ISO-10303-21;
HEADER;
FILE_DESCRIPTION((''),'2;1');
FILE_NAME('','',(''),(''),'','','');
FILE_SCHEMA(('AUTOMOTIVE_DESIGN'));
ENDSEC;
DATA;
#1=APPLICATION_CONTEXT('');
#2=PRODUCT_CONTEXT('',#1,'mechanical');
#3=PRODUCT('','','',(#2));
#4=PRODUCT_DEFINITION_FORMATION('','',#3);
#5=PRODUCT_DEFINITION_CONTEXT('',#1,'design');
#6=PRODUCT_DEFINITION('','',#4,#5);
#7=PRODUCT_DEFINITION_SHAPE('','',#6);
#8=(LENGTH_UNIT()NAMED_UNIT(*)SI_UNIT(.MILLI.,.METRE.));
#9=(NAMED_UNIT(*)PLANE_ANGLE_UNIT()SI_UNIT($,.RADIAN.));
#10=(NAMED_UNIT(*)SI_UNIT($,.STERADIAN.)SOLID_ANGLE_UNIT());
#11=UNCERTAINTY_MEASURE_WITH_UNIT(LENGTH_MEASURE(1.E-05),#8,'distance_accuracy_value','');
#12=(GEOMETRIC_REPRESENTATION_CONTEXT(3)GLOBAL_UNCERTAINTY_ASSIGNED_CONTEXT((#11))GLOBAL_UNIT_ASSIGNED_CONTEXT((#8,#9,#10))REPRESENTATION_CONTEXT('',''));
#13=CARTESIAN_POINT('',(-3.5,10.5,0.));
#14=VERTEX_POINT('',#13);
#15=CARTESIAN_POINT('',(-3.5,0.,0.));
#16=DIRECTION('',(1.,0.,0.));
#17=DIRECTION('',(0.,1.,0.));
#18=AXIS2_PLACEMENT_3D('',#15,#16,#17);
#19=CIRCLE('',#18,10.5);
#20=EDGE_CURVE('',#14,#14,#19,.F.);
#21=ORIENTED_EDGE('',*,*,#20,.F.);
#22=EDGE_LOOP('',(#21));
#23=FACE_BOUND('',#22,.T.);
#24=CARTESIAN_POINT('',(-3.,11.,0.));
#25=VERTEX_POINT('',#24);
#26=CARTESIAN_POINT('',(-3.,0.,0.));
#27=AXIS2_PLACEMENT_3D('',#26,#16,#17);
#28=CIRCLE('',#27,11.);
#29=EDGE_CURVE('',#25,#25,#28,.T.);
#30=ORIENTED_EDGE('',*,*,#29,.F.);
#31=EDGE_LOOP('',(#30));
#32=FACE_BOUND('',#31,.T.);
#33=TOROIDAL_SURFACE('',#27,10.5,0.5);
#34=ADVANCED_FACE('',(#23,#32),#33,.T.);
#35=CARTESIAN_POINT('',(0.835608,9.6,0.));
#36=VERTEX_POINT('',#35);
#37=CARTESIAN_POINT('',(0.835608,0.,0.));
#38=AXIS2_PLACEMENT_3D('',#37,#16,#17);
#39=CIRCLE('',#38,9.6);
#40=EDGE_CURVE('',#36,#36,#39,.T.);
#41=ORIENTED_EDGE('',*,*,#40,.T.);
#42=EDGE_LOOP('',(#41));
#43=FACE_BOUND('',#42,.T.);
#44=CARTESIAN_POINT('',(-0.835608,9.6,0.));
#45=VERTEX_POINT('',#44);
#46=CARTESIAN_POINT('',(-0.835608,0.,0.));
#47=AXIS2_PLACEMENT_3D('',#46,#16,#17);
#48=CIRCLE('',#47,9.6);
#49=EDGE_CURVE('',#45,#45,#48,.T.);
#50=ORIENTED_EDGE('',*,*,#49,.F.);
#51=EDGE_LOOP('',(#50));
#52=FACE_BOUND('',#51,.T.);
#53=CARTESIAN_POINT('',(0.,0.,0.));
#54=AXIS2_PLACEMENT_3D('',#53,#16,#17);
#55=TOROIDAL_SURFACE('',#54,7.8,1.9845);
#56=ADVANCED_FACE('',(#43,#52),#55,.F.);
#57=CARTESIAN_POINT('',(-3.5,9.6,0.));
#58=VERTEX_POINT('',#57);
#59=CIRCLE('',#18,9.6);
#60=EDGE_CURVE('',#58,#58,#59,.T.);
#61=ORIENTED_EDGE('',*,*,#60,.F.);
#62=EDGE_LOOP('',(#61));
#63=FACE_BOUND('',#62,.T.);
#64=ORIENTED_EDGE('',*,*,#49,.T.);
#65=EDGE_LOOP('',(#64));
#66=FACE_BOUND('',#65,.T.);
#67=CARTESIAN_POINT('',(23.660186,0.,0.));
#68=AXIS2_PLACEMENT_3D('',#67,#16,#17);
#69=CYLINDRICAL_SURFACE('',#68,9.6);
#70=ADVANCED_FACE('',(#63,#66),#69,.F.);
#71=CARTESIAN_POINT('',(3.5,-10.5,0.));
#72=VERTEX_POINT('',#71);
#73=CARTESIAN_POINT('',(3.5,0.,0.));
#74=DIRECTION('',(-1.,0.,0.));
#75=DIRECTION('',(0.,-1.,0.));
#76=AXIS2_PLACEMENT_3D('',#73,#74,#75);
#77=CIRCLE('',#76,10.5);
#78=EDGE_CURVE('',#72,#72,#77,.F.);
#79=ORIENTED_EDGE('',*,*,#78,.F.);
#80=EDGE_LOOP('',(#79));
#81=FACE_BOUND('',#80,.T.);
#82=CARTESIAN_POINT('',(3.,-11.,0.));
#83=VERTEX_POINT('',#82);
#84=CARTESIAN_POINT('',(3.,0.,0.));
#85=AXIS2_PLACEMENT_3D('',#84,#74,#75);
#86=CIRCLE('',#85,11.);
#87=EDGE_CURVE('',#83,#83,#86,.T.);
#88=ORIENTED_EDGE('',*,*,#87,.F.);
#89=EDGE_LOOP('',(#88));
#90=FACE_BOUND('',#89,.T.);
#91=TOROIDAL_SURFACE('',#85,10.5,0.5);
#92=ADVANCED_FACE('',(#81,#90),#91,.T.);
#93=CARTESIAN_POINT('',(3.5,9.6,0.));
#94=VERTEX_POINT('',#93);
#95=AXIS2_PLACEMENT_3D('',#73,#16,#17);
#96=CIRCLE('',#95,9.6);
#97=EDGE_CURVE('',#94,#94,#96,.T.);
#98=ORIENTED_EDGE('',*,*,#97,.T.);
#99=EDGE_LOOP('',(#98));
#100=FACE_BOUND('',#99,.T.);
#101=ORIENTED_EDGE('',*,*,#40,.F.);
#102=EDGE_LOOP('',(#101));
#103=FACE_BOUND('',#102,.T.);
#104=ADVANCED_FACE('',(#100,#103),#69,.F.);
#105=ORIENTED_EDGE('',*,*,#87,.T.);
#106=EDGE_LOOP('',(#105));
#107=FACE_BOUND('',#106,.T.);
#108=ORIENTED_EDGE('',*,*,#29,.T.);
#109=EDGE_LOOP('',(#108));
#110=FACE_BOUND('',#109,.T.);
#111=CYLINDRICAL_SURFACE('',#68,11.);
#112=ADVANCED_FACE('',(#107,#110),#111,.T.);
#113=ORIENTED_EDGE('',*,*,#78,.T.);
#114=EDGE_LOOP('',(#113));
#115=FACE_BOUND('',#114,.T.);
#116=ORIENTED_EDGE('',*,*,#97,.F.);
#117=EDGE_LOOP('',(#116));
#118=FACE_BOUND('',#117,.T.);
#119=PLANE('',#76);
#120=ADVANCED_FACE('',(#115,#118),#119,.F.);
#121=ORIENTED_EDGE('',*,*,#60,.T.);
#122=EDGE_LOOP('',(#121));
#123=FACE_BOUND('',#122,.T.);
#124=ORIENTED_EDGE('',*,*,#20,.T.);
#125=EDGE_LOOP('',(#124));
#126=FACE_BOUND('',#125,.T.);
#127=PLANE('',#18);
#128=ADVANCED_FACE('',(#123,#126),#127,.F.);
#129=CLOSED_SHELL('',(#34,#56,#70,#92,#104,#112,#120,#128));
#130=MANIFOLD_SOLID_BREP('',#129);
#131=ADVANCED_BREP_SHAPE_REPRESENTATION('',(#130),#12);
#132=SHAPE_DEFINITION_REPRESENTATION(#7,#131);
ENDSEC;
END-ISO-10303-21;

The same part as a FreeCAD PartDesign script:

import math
import FreeCAD as App
import Part
import Sketcher
from FreeCAD import Vector
Q = App.Units.Quantity


def edges_at(feature, points):
    """Names of the edges that pass closest to the given points."""
    edges = feature.Shape.Edges
    near = lambda p: min(range(len(edges)), key=lambda i: edges[i].distToShape(Part.Vertex(*p))[0])
    return sorted({f"Edge{near(p) + 1}" for p in points})

doc = App.newDocument("Part")
body = doc.addObject("PartDesign::Body", "Body")

sketch1 = body.newObject("Sketcher::SketchObject", "Sketch")
sketch1.AttachmentSupport = (doc.getObject("XY_Plane"), [""])
sketch1.MapMode = "FlatFace"
sketch1.addGeometry([
    Part.LineSegment(Vector(3.5, 9.6, 0), Vector(3.5, 11, 0)),
    Part.LineSegment(Vector(3.5, 11, 0), Vector(-3.5, 11, 0)),
    Part.LineSegment(Vector(-3.5, 11, 0), Vector(-3.5, 9.6, 0)),
    Part.LineSegment(Vector(-3.5, 9.6, 0), Vector(-0.835608, 9.6, 0)),
    Part.ArcOfCircle(Part.Circle(Vector(0, 7.8, 0), Vector(0, 0, 1), 1.9845), math.radians(65.098022), math.radians(114.901978)),
    Part.LineSegment(Vector(0.835608, 9.6, 0), Vector(3.5, 9.6, 0)),
], False)
sketch1.addConstraint([
    Sketcher.Constraint("Coincident", 0, 2, 1, 1),
    Sketcher.Constraint("Coincident", 1, 2, 2, 1),
    Sketcher.Constraint("Coincident", 2, 2, 3, 1),
    Sketcher.Constraint("Coincident", 3, 2, 4, 2),
    Sketcher.Constraint("Coincident", 4, 1, 5, 1),
    Sketcher.Constraint("Coincident", 5, 2, 0, 1),
    Sketcher.Constraint("Vertical", 0),
    Sketcher.Constraint("Horizontal", 1),
    Sketcher.Constraint("Vertical", 2),
    Sketcher.Constraint("Horizontal", 3),
    Sketcher.Constraint("Horizontal", 5),
    Sketcher.Constraint("Symmetric", 3, 2, 4, 1, -2),
    Sketcher.Constraint("Equal", 3, 5),
    Sketcher.Constraint("DistanceX", 1, 2, 1, 1, Q("7 mm")),
    Sketcher.Constraint("DistanceY", 0, 1, 0, 2, Q("1.4 mm")),
    Sketcher.Constraint("DistanceY", -1, 1, 0, 2, Q("11 mm")),
    Sketcher.Constraint("DistanceY", -1, 1, 4, 3, Q("7.8 mm")),
    Sketcher.Constraint("Radius", 4, Q("1.9845 mm")),
])
revolution = body.newObject("PartDesign::Revolution", "Revolution")
revolution.Profile = sketch1
revolution.ReferenceAxis = (sketch1, ["H_Axis"])
revolution.Angle = 360
doc.recompute()

fillet = body.newObject("PartDesign::Fillet", "Fillet")
fillet.Base = (revolution, edges_at(revolution, [(-3.5, -11, 0), (3.5, -11, 0)]))
fillet.Radius = 0.5

doc.recompute()
